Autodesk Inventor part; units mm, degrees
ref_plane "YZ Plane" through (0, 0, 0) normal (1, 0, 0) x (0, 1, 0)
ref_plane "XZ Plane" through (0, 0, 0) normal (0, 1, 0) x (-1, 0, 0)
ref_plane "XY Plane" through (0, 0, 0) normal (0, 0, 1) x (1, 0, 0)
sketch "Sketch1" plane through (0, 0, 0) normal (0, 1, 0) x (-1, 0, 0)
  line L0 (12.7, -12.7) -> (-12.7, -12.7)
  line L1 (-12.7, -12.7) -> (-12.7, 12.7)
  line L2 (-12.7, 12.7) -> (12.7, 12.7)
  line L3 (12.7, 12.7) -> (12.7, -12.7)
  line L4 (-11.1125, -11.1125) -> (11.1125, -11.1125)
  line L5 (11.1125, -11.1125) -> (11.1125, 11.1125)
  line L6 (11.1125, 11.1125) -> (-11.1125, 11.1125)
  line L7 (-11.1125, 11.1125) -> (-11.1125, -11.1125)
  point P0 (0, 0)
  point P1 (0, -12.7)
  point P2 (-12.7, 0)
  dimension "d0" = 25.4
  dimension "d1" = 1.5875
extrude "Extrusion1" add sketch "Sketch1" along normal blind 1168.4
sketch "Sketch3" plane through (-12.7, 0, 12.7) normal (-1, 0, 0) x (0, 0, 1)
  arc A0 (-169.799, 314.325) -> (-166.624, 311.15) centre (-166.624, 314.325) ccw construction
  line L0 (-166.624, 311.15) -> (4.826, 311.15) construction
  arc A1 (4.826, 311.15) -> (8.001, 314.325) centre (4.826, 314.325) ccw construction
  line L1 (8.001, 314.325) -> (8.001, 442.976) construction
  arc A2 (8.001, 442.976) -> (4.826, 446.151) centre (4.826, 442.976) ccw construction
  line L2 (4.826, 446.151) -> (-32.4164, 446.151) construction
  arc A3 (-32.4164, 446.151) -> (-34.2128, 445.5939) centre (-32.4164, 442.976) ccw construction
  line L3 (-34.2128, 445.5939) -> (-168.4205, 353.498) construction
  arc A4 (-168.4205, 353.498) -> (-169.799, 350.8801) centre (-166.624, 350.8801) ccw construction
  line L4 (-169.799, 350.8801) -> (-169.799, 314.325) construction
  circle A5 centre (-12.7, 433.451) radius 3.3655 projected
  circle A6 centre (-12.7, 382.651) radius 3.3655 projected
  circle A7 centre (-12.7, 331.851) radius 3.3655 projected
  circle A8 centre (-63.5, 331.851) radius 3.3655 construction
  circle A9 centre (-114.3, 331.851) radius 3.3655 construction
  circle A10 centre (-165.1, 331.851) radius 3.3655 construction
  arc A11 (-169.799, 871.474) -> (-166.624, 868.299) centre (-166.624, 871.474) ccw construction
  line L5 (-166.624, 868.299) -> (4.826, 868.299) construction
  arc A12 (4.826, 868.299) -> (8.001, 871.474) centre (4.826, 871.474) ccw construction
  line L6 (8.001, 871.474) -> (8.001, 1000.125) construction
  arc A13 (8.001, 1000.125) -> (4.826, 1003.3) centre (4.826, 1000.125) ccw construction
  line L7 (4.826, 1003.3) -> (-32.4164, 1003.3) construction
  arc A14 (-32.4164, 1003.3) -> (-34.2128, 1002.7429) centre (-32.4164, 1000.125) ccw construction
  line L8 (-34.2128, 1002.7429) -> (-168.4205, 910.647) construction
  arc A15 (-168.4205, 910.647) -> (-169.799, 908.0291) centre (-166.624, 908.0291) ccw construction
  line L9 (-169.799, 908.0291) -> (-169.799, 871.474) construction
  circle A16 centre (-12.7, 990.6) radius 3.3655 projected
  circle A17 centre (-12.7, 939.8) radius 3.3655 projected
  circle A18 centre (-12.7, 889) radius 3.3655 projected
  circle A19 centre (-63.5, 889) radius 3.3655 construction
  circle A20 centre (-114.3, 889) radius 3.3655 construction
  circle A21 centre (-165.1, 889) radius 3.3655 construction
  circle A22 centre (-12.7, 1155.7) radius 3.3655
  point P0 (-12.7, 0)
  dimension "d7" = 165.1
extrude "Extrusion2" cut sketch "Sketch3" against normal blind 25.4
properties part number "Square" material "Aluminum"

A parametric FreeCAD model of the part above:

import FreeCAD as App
import Part
import Sketcher
from FreeCAD import Vector
Q = App.Units.Quantity


def add_polygon(sketch, points):
    """Adds a closed chain of lines whose ends are joined by coincident constraints."""
    first, n = sketch.GeometryCount, len(points)
    for a, b in zip(points, points[1:] + points[:1]):
        sketch.addGeometry(Part.LineSegment(App.Vector(*a, 0), App.Vector(*b, 0)), False)
    for i in range(n):
        sketch.addConstraint(Sketcher.Constraint("Coincident", first + i, 2, first + (i + 1) % n, 1))

doc = App.newDocument("Part")
body = doc.addObject("PartDesign::Body", "Body")

# Sketch on XZ plane
sketch1 = body.newObject("Sketcher::SketchObject", "Sketch")
sketch1.AttachmentSupport = (doc.getObject("XZ_Plane"), [""])
sketch1.MapMode = "FlatFace"
add_polygon(sketch1, [(13, -13), (-13, -13), (-13, 13), (13, 13)])  # lines 0-3
add_polygon(sketch1, [(-11, -11), (11, -11), (11, 11), (-11, 11)])  # lines 4-7
sketch1.addConstraint(Sketcher.Constraint("Horizontal", 0))
sketch1.addConstraint(Sketcher.Constraint("Vertical", 1))
sketch1.addConstraint(Sketcher.Constraint("Horizontal", 2))
sketch1.addConstraint(Sketcher.Constraint("Vertical", 3))
sketch1.addConstraint(Sketcher.Constraint("Horizontal", 4))
sketch1.addConstraint(Sketcher.Constraint("Vertical", 5))
sketch1.addConstraint(Sketcher.Constraint("Horizontal", 6))
sketch1.addConstraint(Sketcher.Constraint("Vertical", 7))
sketch1.addConstraint(Sketcher.Constraint("Symmetric", 0, 2, 2, 2, -1, 1))
sketch1.addConstraint(Sketcher.Constraint("Symmetric", 4, 2, 6, 2, -1, 1))
sketch1.addConstraint(Sketcher.Constraint("Equal", 2, 1))
sketch1.addConstraint(Sketcher.Constraint("Equal", 6, 5))
sketch1.addConstraint(Sketcher.Constraint("DistanceX", 0, 2, 0, 1, Q("1 in")))
sketch1.addConstraint(Sketcher.Constraint("DistanceX", 4, 2, 3, 2, Q("0.0625 in")))
pad1 = body.newObject("PartDesign::Pad", "Pad")
pad1.Profile = sketch1
pad1.Length = Q("46 in")
pad1.Reversed = True

# Sketch on YZ plane
sketch2 = body.newObject("Sketcher::SketchObject", "Sketch001")
sketch2.AttachmentSupport = (doc.getObject("YZ_Plane"), [""])
sketch2.MapMode = "FlatFace"
sketch2.AttachmentOffset = App.Placement(Vector(0, 0, -0.5 * 25.4), App.Rotation())
sketch2.addGeometry(Part.Circle(Vector(433.5, 0, 0), Vector(0, 0, 1), 3.4), False)
sketch2.addGeometry(Part.Circle(Vector(382.7, 0, 0), Vector(0, 0, 1), 3.4), False)
sketch2.addGeometry(Part.Circle(Vector(331.9, 0, 0), Vector(0, 0, 1), 3.4), False)
sketch2.addGeometry(Part.Circle(Vector(990.6, 0, 0), Vector(0, 0, 1), 3.4), False)
sketch2.addGeometry(Part.Circle(Vector(939.8, 0, 0), Vector(0, 0, 1), 3.4), False)
sketch2.addGeometry(Part.Circle(Vector(889, 0, 0), Vector(0, 0, 1), 3.4), False)
sketch2.addGeometry(Part.Circle(Vector(1155.7, 0, 0), Vector(0, 0, 1), 3.4), False)
sketch2.addConstraint(Sketcher.Constraint("Equal", 0, 1))
sketch2.addConstraint(Sketcher.Constraint("Equal", 1, 2))
sketch2.addConstraint(Sketcher.Constraint("Equal", 2, 3))
sketch2.addConstraint(Sketcher.Constraint("Equal", 3, 4))
sketch2.addConstraint(Sketcher.Constraint("Equal", 4, 5))
sketch2.addConstraint(Sketcher.Constraint("Equal", 5, 6))
sketch2.addConstraint(Sketcher.Constraint("PointOnObject", 0, 3, -1))
sketch2.addConstraint(Sketcher.Constraint("PointOnObject", 1, 3, -1))
sketch2.addConstraint(Sketcher.Constraint("PointOnObject", 2, 3, -1))
sketch2.addConstraint(Sketcher.Constraint("PointOnObject", 3, 3, -1))
sketch2.addConstraint(Sketcher.Constraint("PointOnObject", 4, 3, -1))
sketch2.addConstraint(Sketcher.Constraint("PointOnObject", 5, 3, -1))
sketch2.addConstraint(Sketcher.Constraint("PointOnObject", 6, 3, -1))
sketch2.addConstraint(Sketcher.Constraint("DistanceX", 3, 3, 6, 3, Q("6.5 in")))
sketch2.addConstraint(Sketcher.Constraint("Diameter", 0, Q("0.265 in")))
sketch2.addConstraint(Sketcher.Constraint("DistanceX", -1, 1, 3, 3, Q("39 in")))
sketch2.addConstraint(Sketcher.Constraint("DistanceX", -1, 1, 4, 3, Q("37 in")))
sketch2.addConstraint(Sketcher.Constraint("DistanceX", -1, 1, 5, 3, Q("35 in")))
sketch2.addConstraint(Sketcher.Constraint("DistanceX", 1, 3, 0, 3, Q("2 in")))
sketch2.addConstraint(Sketcher.Constraint("DistanceX", 2, 3, 1, 3, Q("2 in")))
sketch2.addConstraint(Sketcher.Constraint("DistanceX", -1, 1, 0, 3, Q("17.065 in")))
pocket1 = body.newObject("PartDesign::Pocket", "Pocket")
pocket1.Profile = sketch2
pocket1.Length = Q("1 in")
pocket1.Reversed = True

doc.recompute()
